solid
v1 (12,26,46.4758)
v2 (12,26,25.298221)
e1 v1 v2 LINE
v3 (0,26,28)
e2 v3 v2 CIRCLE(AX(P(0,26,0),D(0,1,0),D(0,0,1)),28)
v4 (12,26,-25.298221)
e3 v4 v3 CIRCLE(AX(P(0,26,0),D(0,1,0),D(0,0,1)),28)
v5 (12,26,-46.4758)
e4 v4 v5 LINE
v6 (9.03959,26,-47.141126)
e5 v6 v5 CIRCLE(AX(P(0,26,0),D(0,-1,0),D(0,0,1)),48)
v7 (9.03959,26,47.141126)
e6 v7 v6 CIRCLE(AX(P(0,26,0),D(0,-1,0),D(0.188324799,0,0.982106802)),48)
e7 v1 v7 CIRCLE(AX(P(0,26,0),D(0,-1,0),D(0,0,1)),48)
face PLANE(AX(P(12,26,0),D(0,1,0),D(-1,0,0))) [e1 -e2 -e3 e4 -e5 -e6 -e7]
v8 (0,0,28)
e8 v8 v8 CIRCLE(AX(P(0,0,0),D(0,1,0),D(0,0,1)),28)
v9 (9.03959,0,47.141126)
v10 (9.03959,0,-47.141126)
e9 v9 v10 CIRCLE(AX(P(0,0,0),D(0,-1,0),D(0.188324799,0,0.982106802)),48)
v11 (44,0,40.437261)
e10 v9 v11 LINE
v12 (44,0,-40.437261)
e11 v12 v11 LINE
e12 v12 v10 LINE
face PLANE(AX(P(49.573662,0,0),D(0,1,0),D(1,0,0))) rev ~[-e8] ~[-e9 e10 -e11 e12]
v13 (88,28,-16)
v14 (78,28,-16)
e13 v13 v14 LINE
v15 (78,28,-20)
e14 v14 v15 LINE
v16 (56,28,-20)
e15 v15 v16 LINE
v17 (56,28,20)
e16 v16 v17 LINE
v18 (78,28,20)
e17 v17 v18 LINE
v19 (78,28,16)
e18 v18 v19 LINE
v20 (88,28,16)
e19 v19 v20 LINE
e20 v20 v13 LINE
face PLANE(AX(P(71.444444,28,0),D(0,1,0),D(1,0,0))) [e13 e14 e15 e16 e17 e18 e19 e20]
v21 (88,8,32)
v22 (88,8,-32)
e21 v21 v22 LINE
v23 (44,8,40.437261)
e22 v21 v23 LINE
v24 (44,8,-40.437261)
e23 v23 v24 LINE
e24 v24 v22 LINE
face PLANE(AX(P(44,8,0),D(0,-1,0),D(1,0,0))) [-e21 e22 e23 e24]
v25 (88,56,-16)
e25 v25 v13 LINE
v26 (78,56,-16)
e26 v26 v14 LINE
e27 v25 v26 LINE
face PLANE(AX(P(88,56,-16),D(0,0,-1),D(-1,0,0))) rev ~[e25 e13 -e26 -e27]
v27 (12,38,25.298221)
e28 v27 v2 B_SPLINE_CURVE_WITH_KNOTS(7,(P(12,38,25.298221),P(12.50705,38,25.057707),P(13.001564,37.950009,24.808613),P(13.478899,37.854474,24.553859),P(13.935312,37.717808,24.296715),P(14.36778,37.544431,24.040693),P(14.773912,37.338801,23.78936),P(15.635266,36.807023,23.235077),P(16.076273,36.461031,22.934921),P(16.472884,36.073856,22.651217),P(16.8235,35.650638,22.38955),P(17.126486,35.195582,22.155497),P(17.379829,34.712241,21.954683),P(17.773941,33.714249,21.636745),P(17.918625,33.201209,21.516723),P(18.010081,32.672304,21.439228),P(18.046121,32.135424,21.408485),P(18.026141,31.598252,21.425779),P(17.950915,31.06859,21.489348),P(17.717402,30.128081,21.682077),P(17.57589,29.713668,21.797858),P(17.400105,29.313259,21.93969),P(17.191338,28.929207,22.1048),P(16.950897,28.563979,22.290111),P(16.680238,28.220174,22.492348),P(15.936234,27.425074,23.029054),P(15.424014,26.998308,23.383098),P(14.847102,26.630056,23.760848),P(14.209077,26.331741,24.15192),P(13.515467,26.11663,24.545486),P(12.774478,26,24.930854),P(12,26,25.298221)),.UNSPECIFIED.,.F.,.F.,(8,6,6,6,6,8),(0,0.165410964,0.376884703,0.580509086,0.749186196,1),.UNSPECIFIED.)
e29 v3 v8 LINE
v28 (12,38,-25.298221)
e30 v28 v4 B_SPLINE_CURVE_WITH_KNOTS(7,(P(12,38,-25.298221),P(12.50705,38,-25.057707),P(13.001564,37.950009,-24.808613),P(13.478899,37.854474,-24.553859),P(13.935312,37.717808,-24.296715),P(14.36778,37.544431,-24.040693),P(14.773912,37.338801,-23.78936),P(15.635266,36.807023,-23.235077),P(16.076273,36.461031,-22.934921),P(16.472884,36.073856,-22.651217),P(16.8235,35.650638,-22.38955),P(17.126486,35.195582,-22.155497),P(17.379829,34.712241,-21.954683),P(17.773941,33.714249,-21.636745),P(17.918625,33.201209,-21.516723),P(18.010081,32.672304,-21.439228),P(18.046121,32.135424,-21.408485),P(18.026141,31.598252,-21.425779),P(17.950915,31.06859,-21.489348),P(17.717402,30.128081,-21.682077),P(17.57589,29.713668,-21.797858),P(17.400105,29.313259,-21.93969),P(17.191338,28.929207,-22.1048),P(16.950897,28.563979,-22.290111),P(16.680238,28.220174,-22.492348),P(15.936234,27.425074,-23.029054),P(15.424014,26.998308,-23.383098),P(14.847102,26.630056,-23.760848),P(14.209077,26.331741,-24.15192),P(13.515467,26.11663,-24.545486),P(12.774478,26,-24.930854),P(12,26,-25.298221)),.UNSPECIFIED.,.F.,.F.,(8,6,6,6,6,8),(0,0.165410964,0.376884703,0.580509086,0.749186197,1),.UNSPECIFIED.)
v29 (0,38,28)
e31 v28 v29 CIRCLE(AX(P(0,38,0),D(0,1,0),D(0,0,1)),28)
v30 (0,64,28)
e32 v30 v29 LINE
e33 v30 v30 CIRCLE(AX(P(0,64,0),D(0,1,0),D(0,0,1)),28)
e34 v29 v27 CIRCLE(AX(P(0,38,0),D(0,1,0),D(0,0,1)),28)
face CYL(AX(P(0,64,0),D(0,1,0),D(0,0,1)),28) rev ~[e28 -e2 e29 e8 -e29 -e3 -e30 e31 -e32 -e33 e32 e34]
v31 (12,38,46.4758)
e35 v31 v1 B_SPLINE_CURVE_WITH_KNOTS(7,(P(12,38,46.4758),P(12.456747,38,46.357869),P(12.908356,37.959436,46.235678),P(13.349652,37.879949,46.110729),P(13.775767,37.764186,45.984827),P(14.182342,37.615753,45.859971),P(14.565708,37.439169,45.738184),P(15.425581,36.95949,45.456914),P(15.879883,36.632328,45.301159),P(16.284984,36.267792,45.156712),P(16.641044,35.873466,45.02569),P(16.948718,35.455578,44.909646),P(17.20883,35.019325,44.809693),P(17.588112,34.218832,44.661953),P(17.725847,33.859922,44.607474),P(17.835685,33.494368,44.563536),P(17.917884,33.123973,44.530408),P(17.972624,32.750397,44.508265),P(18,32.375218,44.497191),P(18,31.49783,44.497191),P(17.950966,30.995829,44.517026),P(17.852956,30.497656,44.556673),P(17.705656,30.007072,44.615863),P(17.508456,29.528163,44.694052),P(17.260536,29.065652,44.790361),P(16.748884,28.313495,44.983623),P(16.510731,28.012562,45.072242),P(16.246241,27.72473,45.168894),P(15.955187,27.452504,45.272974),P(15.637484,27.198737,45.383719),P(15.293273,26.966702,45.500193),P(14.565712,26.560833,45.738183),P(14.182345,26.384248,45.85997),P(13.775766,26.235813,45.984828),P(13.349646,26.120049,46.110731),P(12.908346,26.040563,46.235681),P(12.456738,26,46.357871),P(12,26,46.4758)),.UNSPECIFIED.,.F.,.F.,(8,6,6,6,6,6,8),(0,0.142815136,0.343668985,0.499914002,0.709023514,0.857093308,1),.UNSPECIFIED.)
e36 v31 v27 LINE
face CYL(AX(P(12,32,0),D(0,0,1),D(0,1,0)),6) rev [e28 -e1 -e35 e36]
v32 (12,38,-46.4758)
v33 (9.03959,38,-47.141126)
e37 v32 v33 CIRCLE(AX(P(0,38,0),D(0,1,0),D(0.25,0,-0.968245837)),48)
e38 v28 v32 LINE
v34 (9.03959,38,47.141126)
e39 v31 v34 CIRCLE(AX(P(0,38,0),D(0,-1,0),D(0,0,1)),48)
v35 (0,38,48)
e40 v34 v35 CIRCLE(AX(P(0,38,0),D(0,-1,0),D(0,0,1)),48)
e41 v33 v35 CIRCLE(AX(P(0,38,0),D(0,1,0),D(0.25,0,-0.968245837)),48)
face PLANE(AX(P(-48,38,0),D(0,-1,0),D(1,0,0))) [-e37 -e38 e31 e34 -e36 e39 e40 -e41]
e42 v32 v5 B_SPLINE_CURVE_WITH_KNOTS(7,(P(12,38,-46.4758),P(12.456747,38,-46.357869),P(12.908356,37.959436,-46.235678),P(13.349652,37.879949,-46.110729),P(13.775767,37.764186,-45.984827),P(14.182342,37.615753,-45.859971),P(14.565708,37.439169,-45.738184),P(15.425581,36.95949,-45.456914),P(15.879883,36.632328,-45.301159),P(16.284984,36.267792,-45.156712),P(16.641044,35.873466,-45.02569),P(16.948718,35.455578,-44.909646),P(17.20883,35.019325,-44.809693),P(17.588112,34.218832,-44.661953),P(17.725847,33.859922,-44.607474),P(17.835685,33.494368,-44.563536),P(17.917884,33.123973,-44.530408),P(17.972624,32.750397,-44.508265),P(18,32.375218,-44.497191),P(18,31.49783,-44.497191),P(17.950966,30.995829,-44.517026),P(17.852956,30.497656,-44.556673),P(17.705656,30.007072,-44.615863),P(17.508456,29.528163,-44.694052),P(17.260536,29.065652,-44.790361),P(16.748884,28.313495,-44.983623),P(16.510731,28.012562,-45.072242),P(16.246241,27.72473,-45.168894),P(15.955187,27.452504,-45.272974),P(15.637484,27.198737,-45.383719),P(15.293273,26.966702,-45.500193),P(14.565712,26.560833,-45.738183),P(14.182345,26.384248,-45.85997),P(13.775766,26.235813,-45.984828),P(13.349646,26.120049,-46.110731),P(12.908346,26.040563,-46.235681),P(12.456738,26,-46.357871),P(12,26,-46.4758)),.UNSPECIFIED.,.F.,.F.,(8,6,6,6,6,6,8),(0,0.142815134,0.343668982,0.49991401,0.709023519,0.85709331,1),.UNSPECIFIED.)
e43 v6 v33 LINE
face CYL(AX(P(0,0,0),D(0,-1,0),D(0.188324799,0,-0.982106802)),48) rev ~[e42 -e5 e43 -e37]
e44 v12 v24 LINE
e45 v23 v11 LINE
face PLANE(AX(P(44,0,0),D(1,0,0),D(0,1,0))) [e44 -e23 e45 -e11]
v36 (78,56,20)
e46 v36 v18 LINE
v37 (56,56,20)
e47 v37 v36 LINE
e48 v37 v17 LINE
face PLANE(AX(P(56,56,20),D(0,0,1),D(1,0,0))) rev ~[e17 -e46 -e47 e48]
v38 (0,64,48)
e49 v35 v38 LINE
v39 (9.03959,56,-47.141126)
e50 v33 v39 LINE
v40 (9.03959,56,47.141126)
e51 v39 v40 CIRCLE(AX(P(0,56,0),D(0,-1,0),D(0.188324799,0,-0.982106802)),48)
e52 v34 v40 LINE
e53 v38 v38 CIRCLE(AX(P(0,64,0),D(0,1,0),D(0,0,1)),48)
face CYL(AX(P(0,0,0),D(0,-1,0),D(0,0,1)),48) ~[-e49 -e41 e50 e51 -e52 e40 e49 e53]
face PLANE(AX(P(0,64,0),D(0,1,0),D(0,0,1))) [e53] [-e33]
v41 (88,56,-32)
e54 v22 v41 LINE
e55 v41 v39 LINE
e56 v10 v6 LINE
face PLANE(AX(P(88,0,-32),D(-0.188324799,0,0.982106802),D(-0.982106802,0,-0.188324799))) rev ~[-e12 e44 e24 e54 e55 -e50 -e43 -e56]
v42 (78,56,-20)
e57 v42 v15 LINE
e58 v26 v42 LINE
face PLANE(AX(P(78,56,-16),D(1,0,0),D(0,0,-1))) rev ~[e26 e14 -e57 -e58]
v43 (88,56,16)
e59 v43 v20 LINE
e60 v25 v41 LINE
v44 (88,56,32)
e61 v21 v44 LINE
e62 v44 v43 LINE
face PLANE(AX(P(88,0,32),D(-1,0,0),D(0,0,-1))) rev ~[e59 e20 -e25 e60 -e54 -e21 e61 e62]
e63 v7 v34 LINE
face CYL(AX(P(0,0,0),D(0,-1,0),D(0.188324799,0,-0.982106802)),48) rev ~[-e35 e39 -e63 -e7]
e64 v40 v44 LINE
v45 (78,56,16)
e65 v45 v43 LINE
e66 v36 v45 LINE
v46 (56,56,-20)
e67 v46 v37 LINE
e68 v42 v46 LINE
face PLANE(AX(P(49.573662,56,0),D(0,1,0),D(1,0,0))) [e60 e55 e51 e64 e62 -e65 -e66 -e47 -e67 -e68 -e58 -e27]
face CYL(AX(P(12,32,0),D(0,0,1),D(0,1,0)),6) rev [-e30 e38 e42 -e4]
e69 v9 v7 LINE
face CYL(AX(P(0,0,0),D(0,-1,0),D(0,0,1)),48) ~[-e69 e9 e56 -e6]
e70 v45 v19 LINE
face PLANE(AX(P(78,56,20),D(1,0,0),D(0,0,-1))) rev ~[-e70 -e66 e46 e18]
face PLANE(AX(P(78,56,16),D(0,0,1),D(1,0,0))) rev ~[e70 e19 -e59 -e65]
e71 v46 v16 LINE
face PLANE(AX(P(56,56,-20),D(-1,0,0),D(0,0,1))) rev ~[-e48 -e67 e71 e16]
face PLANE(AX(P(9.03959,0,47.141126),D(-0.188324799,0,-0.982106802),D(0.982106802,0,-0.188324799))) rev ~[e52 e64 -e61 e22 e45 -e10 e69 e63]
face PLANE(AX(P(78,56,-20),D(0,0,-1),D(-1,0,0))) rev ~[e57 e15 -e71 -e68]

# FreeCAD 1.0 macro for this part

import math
import FreeCAD as App
import Part
import Sketcher

V = App.Vector
Q = App.Units.Quantity


def add_polygon(sketch, points):
    """Adds a closed chain of lines whose ends are joined by coincident constraints."""
    first, n = sketch.GeometryCount, len(points)
    for a, b in zip(points, points[1:] + points[:1]):
        sketch.addGeometry(Part.LineSegment(App.Vector(*a, 0), App.Vector(*b, 0)), False)
    for i in range(n):
        sketch.addConstraint(Sketcher.Constraint("Coincident", first + i, 2, first + (i + 1) % n, 1))

doc = App.newDocument("Part")
body = doc.addObject("PartDesign::Body", "Body")

# Sketch on XZ plane
sketch1 = body.newObject("Sketcher::SketchObject", "Sketch")
sketch1.AttachmentSupport = (doc.getObject("XZ_Plane"), [""])
sketch1.MapMode = "FlatFace"
sketch1.addGeometry(Part.Circle(V(0, 0, 0), V(0, 0, 1), 48), False)
sketch1.addConstraint(Sketcher.Constraint("Coincident", 0, 3, -1, 1))
sketch1.addConstraint(Sketcher.Constraint("Diameter", 0, Q("96 mm")))
pad1 = body.newObject("PartDesign::Pad", "Pad")
pad1.Profile = sketch1
pad1.Length = 64
pad1.Reversed = True

# Sketch on XY plane
sketch2 = body.newObject("Sketcher::SketchObject", "Sketch001")
sketch2.AttachmentSupport = (doc.getObject("XY_Plane"), [""])
sketch2.MapMode = "FlatFace"
sketch2.addGeometry(Part.LineSegment(V(12, 38, 0), V(-48, 38, 0)), False)
sketch2.addGeometry(Part.LineSegment(V(-48, 38, 0), V(-48, 26, 0)), False)
sketch2.addGeometry(Part.LineSegment(V(-48, 26, 0), V(12, 26, 0)), False)
sketch2.addGeometry(Part.ArcOfCircle(Part.Circle(V(12, 32, 0), V(0, 0, 1), 6), math.radians(-90), math.radians(90)), False)
sketch2.addConstraint(Sketcher.Constraint("Coincident", 0, 2, 1, 1))
sketch2.addConstraint(Sketcher.Constraint("Coincident", 1, 2, 2, 1))
sketch2.addConstraint(Sketcher.Constraint("Tangent", 2, 2, 3, 1))
sketch2.addConstraint(Sketcher.Constraint("Tangent", 3, 2, 0, 1))
sketch2.addConstraint(Sketcher.Constraint("Horizontal", 0))
sketch2.addConstraint(Sketcher.Constraint("Vertical", 1))
sketch2.addConstraint(Sketcher.Constraint("Horizontal", 2))
sketch2.addConstraint(Sketcher.Constraint("Radius", 3, Q("6 mm")))
sketch2.addConstraint(Sketcher.Constraint("DistanceX", 0, 2, 0, 1, Q("60 mm")))
sketch2.addConstraint(Sketcher.Constraint("DistanceX", -1, 1, 3, 3, Q("12 mm")))
sketch2.addConstraint(Sketcher.Constraint("DistanceY", -1, 1, 3, 3, Q("32 mm")))
pocket1 = body.newObject("PartDesign::Pocket", "Pocket")
pocket1.Profile = sketch2
pocket1.Length = 134
pocket1.Midplane = True

# Sketch on XZ plane
sketch3 = body.newObject("Sketcher::SketchObject", "Sketch002")
sketch3.AttachmentSupport = (doc.getObject("XZ_Plane"), [""])
sketch3.MapMode = "FlatFace"
sketch3.addGeometry(Part.LineSegment(V(88, 32, 0), V(88, -32, 0)), False)
sketch3.addGeometry(Part.LineSegment(V(88, -32, 0), V(9, -47, 0)), False)
sketch3.addGeometry(Part.ArcOfCircle(Part.Circle(V(0, 0, 0), V(0, 0, 1), 48), math.radians(-79), math.radians(79)), False)
sketch3.addGeometry(Part.LineSegment(V(9, 47, 0), V(88, 32, 0)), False)
sketch3.addConstraint(Sketcher.Constraint("Coincident", 0, 2, 1, 1))
sketch3.addConstraint(Sketcher.Constraint("Tangent", 1, 2, 2, 1))
sketch3.addConstraint(Sketcher.Constraint("Tangent", 2, 2, 3, 1))
sketch3.addConstraint(Sketcher.Constraint("Coincident", 3, 2, 0, 1))
sketch3.addConstraint(Sketcher.Constraint("Vertical", 0))
sketch3.addConstraint(Sketcher.Constraint("Coincident", 2, 3, -1, 1))
sketch3.addConstraint(Sketcher.Constraint("Vertical", 1, 2, 2, 2))
sketch3.addConstraint(Sketcher.Constraint("Radius", 2, Q("48 mm")))
sketch3.addConstraint(Sketcher.Constraint("DistanceY", 0, 2, 0, 1, Q("64 mm")))
sketch3.addConstraint(Sketcher.Constraint("DistanceX", -1, 1, 0, 2, Q("88 mm")))
pad2 = body.newObject("PartDesign::Pad", "Pad001")
pad2.Profile = sketch3
pad2.Length = 56
pad2.Reversed = True

# Sketch on XZ plane
sketch4 = body.newObject("Sketcher::SketchObject", "Sketch003")
sketch4.AttachmentSupport = (doc.getObject("XZ_Plane"), [""])
sketch4.MapMode = "FlatFace"
sketch4.AttachmentOffset = App.Placement(V(0, 0, -56), App.Rotation())
add_polygon(sketch4, [(88, 16), (88, -16), (78, -16), (78, -20), (56, -20), (56, 20), (78, 20), (78, 16)])  # lines 0-7
sketch4.addConstraint(Sketcher.Constraint("Vertical", 0))
sketch4.addConstraint(Sketcher.Constraint("Horizontal", 1))
sketch4.addConstraint(Sketcher.Constraint("Vertical", 2))
sketch4.addConstraint(Sketcher.Constraint("Horizontal", 3))
sketch4.addConstraint(Sketcher.Constraint("Vertical", 4))
sketch4.addConstraint(Sketcher.Constraint("Horizontal", 5))
sketch4.addConstraint(Sketcher.Constraint("Vertical", 6))
sketch4.addConstraint(Sketcher.Constraint("Horizontal", 7))
sketch4.addConstraint(Sketcher.Constraint("Symmetric", 2, 2, 5, 2, -1))
sketch4.addConstraint(Sketcher.Constraint("Equal", 2, 6))
sketch4.addConstraint(Sketcher.Constraint("DistanceX", 1, 2, 1, 1, Q("10 mm")))
sketch4.addConstraint(Sketcher.Constraint("DistanceX", 3, 2, 3, 1, Q("22 mm")))
sketch4.addConstraint(Sketcher.Constraint("DistanceY", 0, 2, 0, 1, Q("32 mm")))
sketch4.addConstraint(Sketcher.Constraint("DistanceY", 2, 2, 2, 1, Q("4 mm")))
sketch4.addConstraint(Sketcher.Constraint("DistanceX", -1, 1, 0, 2, Q("88 mm")))
pocket2 = body.newObject("PartDesign::Pocket", "Pocket001")
pocket2.Profile = sketch4
pocket2.Length = 28
pocket2.Reversed = True

# Sketch on XY plane
sketch5 = body.newObject("Sketcher::SketchObject", "Sketch004")
sketch5.AttachmentSupport = (doc.getObject("XY_Plane"), [""])
sketch5.MapMode = "FlatFace"
add_polygon(sketch5, [(44, 8), (44, 0), (88, 0), (88, 8)])  # lines 0-3
sketch5.addConstraint(Sketcher.Constraint("Vertical", 0))
sketch5.addConstraint(Sketcher.Constraint("Horizontal", 1))
sketch5.addConstraint(Sketcher.Constraint("Vertical", 2))
sketch5.addConstraint(Sketcher.Constraint("Horizontal", 3))
sketch5.addConstraint(Sketcher.Constraint("PointOnObject", 0, 2, -1))
sketch5.addConstraint(Sketcher.Constraint("DistanceX", 1, 1, 1, 2, Q("44 mm")))
sketch5.addConstraint(Sketcher.Constraint("DistanceY", 0, 2, 0, 1, Q("8 mm")))
sketch5.addConstraint(Sketcher.Constraint("DistanceX", -1, 1, 0, 2, Q("44 mm")))
pocket3 = body.newObject("PartDesign::Pocket", "Pocket002")
pocket3.Profile = sketch5
pocket3.Length = 108
pocket3.Midplane = True

# Sketch on XZ plane
sketch6 = body.newObject("Sketcher::SketchObject", "Sketch005")
sketch6.AttachmentSupport = (doc.getObject("XZ_Plane"), [""])
sketch6.MapMode = "FlatFace"
sketch6.AttachmentOffset = App.Placement(V(0, 0, -64), App.Rotation())
sketch6.addGeometry(Part.Circle(V(0, 0, 0), V(0, 0, 1), 28), False)
sketch6.addConstraint(Sketcher.Constraint("Coincident", 0, 3, -1, 1))
sketch6.addConstraint(Sketcher.Constraint("Diameter", 0, Q("56 mm")))
pocket4 = body.newObject("PartDesign::Pocket", "Pocket003")
pocket4.Profile = sketch6
pocket4.Type = "ThroughAll"
pocket4.Reversed = True

doc.recompute()
